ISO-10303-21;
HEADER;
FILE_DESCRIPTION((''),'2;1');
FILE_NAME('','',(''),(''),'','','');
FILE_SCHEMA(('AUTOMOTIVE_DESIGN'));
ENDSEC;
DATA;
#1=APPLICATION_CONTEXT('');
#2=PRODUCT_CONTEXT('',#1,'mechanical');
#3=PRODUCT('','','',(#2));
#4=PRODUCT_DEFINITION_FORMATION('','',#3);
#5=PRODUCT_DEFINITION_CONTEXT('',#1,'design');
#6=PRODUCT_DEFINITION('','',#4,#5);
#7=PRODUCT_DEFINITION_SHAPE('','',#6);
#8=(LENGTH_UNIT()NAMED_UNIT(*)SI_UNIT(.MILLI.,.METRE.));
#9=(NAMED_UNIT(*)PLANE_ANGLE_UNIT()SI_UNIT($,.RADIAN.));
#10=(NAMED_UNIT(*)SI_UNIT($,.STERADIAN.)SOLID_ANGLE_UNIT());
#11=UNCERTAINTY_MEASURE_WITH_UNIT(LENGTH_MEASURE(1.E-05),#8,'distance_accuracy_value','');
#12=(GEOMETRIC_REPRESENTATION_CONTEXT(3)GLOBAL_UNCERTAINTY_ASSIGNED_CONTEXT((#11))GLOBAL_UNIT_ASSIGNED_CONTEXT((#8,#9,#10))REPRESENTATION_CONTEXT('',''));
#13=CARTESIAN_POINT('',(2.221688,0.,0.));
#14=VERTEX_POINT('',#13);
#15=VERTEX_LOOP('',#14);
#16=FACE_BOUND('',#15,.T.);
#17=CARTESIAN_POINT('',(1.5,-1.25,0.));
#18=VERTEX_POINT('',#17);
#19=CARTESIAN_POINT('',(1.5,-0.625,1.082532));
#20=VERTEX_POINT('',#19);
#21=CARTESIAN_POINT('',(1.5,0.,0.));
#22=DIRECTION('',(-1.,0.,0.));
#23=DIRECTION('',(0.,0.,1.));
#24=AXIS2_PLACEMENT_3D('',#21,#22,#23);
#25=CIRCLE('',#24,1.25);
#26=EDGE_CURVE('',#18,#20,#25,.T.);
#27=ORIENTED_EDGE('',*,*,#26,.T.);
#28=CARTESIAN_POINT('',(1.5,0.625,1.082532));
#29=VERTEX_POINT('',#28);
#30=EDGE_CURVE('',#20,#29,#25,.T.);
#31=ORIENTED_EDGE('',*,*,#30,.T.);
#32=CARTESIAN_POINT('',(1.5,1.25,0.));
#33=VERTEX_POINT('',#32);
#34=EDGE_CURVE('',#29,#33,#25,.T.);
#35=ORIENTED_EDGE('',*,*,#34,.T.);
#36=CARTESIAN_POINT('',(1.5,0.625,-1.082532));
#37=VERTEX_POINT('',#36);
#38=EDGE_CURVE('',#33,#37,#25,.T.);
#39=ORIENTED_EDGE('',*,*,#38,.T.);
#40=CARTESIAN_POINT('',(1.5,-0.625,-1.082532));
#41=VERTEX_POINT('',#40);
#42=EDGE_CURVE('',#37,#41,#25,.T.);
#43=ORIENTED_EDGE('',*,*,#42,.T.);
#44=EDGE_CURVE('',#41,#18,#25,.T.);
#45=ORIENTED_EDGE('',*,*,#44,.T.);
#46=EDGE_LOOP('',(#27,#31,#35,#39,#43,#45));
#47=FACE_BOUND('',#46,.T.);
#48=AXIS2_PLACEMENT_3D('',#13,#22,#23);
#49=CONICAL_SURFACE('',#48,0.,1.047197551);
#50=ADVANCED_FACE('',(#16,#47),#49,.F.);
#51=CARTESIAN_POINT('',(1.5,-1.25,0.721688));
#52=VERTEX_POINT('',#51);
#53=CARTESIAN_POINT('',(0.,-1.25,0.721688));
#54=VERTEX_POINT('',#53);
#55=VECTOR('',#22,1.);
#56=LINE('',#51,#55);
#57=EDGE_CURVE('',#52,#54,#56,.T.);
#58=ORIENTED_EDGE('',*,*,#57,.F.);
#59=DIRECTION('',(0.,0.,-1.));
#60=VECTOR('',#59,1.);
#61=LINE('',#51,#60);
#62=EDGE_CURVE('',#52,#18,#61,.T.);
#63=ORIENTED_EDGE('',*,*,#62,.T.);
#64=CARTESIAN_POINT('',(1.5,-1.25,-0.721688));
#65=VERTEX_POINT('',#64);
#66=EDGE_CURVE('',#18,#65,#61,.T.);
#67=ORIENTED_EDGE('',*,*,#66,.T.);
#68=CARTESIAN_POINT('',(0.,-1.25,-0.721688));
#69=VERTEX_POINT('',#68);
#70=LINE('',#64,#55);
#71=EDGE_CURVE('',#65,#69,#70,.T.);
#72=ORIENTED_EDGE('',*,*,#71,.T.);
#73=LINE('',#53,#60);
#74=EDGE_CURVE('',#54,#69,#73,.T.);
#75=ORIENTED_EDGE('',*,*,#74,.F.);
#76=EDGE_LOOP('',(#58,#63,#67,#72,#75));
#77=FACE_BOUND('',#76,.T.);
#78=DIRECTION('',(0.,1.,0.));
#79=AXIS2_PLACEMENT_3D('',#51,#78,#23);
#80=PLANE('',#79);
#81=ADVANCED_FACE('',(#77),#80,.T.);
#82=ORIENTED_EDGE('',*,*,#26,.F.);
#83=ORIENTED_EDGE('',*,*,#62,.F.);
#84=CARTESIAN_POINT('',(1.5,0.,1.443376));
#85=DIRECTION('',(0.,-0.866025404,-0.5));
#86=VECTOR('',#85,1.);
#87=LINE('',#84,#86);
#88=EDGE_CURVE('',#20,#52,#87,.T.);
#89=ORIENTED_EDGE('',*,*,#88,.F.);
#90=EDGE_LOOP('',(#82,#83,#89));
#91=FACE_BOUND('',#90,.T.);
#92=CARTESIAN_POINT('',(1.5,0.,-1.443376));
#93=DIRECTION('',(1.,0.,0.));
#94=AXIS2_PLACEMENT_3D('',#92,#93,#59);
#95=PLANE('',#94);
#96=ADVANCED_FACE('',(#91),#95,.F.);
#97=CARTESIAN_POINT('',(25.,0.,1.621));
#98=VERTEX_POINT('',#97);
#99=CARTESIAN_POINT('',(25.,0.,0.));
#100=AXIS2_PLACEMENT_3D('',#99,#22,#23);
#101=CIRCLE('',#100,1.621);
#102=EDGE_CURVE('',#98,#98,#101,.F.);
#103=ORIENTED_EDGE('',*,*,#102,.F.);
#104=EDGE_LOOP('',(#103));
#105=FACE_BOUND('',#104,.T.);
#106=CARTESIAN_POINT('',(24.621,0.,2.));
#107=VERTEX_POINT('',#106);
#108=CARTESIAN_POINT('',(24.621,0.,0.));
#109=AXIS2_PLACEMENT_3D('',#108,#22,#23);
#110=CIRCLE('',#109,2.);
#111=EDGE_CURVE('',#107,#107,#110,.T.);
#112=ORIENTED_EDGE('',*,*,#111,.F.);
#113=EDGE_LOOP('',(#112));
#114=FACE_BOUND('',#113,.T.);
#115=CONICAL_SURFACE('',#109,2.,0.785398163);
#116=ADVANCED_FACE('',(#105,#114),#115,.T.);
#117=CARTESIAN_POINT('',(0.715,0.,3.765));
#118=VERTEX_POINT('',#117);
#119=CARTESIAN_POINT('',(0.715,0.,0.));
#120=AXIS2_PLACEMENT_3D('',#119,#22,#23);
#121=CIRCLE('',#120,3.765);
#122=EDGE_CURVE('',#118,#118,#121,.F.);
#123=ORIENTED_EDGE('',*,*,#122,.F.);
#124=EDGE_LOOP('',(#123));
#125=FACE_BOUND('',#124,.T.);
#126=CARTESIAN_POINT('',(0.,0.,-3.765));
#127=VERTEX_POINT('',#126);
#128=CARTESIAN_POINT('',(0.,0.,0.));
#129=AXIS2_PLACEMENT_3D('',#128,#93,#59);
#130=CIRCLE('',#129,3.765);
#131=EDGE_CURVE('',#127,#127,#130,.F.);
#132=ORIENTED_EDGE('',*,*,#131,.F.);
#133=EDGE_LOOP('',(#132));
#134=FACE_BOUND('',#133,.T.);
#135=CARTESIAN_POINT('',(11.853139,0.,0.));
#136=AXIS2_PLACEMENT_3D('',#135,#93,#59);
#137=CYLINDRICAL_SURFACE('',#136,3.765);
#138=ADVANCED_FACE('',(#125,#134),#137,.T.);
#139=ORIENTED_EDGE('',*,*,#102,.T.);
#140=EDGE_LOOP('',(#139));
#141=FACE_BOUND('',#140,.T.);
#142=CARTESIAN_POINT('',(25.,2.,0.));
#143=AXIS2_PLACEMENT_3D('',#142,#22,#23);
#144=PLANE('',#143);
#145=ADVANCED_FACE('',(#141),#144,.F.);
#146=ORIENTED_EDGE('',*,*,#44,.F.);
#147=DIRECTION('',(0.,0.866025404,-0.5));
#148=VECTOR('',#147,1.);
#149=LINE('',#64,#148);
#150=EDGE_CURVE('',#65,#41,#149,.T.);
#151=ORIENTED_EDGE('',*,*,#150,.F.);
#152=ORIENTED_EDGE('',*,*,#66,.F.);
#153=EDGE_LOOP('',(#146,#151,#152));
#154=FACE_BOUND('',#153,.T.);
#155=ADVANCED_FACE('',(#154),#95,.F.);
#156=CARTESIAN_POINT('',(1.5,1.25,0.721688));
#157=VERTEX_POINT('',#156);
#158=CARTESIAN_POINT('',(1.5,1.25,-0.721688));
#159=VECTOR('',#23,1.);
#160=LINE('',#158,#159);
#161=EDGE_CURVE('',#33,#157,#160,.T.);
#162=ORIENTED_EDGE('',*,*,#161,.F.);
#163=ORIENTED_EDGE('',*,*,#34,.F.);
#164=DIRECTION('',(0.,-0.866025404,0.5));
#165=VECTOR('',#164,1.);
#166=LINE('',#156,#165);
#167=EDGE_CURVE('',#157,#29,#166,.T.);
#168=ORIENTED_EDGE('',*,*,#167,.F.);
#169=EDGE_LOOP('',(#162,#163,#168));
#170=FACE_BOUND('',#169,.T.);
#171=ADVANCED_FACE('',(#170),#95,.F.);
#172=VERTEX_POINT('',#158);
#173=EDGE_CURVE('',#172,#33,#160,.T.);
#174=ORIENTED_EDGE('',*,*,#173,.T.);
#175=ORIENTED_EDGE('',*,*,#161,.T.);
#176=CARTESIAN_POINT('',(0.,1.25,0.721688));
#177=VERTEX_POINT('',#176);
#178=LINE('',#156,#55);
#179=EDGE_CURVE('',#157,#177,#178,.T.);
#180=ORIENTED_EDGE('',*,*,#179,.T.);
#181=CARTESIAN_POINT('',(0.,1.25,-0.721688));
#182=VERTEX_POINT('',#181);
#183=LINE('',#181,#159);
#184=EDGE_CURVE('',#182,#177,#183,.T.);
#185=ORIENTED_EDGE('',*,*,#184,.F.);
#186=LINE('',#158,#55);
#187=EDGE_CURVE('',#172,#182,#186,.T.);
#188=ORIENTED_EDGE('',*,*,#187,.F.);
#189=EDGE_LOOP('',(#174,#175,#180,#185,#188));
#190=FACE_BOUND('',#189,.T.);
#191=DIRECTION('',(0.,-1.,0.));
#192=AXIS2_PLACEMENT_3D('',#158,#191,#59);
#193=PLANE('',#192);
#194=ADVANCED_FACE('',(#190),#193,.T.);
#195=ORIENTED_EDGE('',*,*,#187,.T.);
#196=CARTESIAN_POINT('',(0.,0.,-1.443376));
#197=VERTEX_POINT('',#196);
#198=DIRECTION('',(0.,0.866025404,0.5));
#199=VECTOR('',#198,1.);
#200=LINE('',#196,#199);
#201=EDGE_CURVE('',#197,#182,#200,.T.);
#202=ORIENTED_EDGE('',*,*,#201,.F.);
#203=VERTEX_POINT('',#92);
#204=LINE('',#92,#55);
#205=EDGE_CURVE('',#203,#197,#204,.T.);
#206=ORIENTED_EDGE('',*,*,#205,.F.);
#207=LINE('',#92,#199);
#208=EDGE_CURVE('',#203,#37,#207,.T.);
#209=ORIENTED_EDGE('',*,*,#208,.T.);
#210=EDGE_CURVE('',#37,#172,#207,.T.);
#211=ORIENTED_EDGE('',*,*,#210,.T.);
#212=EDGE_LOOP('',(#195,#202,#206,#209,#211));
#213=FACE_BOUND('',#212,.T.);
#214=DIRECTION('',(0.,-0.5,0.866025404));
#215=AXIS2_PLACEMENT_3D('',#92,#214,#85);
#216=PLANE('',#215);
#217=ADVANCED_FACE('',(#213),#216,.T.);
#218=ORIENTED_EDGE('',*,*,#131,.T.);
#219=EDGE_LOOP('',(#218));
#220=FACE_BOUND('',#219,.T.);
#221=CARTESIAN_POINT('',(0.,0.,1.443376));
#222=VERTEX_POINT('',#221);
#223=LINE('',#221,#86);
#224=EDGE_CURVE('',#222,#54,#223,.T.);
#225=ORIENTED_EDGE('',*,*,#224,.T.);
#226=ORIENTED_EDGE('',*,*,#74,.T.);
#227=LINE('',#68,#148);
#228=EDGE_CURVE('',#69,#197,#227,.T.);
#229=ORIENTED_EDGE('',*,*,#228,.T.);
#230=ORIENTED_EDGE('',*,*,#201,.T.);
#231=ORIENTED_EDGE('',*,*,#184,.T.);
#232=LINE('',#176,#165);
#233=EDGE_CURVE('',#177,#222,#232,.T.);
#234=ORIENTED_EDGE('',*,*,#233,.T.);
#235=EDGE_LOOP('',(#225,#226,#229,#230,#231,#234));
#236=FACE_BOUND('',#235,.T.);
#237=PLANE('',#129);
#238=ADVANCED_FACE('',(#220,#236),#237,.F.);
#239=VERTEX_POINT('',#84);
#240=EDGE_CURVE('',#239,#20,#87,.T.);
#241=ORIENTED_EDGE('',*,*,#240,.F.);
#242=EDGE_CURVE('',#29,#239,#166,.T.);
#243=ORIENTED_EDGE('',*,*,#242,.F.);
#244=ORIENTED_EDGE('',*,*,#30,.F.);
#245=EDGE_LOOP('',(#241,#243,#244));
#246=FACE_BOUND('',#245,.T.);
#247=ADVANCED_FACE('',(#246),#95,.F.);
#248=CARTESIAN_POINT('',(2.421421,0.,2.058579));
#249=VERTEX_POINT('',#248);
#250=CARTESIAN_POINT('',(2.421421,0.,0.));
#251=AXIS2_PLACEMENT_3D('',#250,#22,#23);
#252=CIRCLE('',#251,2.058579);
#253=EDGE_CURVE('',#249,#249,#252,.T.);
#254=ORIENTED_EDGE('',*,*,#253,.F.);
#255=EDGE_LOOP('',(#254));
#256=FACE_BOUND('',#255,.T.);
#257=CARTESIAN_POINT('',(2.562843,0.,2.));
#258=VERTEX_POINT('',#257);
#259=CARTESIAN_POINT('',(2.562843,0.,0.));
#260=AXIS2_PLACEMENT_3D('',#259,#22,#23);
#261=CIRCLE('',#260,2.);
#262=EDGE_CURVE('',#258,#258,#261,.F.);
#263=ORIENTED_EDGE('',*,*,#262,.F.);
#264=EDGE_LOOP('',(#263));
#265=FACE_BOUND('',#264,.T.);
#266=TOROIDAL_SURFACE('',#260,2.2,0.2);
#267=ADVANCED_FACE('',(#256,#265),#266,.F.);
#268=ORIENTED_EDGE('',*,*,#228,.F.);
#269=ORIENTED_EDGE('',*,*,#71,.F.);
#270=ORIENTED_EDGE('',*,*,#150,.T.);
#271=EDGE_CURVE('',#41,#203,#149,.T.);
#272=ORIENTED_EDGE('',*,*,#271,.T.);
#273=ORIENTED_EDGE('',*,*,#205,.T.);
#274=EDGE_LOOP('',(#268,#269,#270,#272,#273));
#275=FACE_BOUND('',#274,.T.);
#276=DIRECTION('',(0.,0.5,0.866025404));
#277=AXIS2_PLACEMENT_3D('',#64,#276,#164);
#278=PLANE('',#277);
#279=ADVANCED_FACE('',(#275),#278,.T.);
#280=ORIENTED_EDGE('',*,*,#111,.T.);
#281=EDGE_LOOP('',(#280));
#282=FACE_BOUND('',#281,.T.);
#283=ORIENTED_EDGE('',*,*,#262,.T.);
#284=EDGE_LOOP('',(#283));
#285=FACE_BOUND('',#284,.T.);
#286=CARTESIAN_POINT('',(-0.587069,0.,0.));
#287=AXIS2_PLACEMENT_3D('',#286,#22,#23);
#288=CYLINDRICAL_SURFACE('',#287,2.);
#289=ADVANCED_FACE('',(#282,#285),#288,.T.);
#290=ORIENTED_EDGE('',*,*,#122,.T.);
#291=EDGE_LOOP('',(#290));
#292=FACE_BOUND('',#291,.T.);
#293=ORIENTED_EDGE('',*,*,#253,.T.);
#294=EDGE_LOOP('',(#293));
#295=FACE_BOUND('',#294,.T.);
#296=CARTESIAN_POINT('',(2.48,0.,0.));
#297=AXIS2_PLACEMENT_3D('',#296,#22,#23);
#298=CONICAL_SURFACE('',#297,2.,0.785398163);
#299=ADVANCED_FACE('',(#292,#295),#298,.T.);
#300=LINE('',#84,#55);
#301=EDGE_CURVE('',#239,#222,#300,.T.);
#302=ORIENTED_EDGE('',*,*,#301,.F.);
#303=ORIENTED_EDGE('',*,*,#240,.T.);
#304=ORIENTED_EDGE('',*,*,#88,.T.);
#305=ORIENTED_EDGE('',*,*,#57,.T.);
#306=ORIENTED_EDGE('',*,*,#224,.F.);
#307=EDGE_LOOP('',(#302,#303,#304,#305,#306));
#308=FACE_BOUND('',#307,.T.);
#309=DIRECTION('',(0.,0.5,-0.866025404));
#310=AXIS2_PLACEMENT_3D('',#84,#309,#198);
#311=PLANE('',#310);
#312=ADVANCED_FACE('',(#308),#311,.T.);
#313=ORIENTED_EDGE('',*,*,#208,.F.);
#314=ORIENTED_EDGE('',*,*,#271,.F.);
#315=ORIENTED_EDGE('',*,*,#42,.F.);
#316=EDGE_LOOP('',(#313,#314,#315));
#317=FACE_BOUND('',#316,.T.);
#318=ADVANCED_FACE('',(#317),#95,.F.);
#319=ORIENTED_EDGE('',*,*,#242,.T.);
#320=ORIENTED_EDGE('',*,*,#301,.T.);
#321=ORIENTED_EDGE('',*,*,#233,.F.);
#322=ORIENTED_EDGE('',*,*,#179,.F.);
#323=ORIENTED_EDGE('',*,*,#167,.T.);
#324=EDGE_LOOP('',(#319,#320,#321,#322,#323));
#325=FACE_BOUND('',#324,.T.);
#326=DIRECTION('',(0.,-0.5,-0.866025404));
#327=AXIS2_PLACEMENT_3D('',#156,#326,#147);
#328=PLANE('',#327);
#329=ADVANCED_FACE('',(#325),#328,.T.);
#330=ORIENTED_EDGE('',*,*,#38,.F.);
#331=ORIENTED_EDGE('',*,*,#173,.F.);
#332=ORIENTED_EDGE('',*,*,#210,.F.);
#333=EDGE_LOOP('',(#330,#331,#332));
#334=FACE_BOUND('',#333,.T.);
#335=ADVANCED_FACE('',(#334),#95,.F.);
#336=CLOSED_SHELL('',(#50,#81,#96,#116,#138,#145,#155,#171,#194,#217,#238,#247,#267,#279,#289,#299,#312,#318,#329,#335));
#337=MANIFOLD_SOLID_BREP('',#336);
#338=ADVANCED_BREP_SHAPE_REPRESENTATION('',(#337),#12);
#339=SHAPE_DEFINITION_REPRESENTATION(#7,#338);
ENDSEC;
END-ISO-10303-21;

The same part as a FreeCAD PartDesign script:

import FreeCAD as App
import Part
import Sketcher
from FreeCAD import Vector
Q = App.Units.Quantity


def edges_at(feature, points):
    """Names of the edges that pass closest to the given points."""
    edges = feature.Shape.Edges
    near = lambda p: min(range(len(edges)), key=lambda i: edges[i].distToShape(Part.Vertex(*p))[0])
    return sorted({f"Edge{near(p) + 1}" for p in points})

doc = App.newDocument("Part")
body = doc.addObject("PartDesign::Body", "Body")

# Sketch on XY plane
sketch1 = body.newObject("Sketcher::SketchObject", "Sketch")
sketch1.AttachmentSupport = (doc.getObject("XY_Plane"), [""])
sketch1.MapMode = "FlatFace"
sketch1.addGeometry([
    Part.LineSegment(Vector(0, 4.5, 0), Vector(0, 0, 0)),  # 0
    Part.LineSegment(Vector(0, 0, 0), Vector(25, 0, 0)),  # 1
    Part.LineSegment(Vector(25, 0, 0), Vector(25, 2, 0)),  # 2
    Part.LineSegment(Vector(25, 2, 0), Vector(2.5, 2, 0)),  # 3
    Part.LineSegment(Vector(2.5, 2, 0), Vector(0, 4.5, 0)),  # 4
], False)
sketch1.addConstraint([
    Sketcher.Constraint("Coincident", 0, 2, 1, 1),
    Sketcher.Constraint("Coincident", 1, 2, 2, 1),
    Sketcher.Constraint("Coincident", 2, 2, 3, 1),
    Sketcher.Constraint("Coincident", 3, 2, 4, 1),
    Sketcher.Constraint("Coincident", 4, 2, 0, 1),
    Sketcher.Constraint("Vertical", 0),
    Sketcher.Constraint("Horizontal", 1),
    Sketcher.Constraint("Vertical", 2),
    Sketcher.Constraint("Horizontal", 3),
    Sketcher.Constraint("Coincident", 0, 2, -1, 1),
    Sketcher.Constraint("DistanceX", 1, 1, 1, 2, 25.0),
    Sketcher.Constraint("DistanceY", 2, 1, 2, 2, 2.0),
    Sketcher.Constraint("Angle", 4, Q("135 deg")),
    Sketcher.Constraint("DistanceX", 3, 2, 3, 1, 22.52),
])
revolution = body.newObject("PartDesign::Revolution", "Revolution")
revolution.Profile = sketch1
revolution.ReferenceAxis = (sketch1, ["H_Axis"])
revolution.Angle = 360

# Sketch on YZ plane
sketch2 = body.newObject("Sketcher::SketchObject", "Sketch001")
sketch2.AttachmentSupport = (doc.getObject("YZ_Plane"), [""])
sketch2.MapMode = "FlatFace"
sketch2.addGeometry([
    Part.LineSegment(Vector(0, -1.4, 0), Vector(1.2, -0.7, 0)),  # 0
    Part.LineSegment(Vector(1.2, -0.7, 0), Vector(1.2, 0.7, 0)),  # 1
    Part.LineSegment(Vector(1.2, 0.7, 0), Vector(0, 1.4, 0)),  # 2
    Part.LineSegment(Vector(0, 1.4, 0), Vector(-1.2, 0.7, 0)),  # 3
    Part.LineSegment(Vector(-1.2, 0.7, 0), Vector(-1.2, -0.7, 0)),  # 4
    Part.LineSegment(Vector(-1.2, -0.7, 0), Vector(0, -1.4, 0)),  # 5
], False)
sketch2.addConstraint([
    Sketcher.Constraint("Coincident", 0, 2, 1, 1),
    Sketcher.Constraint("Coincident", 1, 2, 2, 1),
    Sketcher.Constraint("Coincident", 2, 2, 3, 1),
    Sketcher.Constraint("Coincident", 3, 2, 4, 1),
    Sketcher.Constraint("Coincident", 4, 2, 5, 1),
    Sketcher.Constraint("Coincident", 5, 2, 0, 1),
    Sketcher.Constraint("Vertical", 1),
    Sketcher.Constraint("Vertical", 4),
    Sketcher.Constraint("Symmetric", 0, 2, 3, 2, -1, 1),
    Sketcher.Constraint("Symmetric", 2, 2, 5, 2, -1, 1),
    Sketcher.Constraint("PointOnObject", 2, 2, -2),
    Sketcher.Constraint("Parallel", 2, 5),
    Sketcher.Constraint("Horizontal", 1, 2, 3, 2),
    Sketcher.Constraint("Angle", 0, Q("30 deg")),
    Sketcher.Constraint("DistanceX", 3, 2, 1, 2, 2.5),
    Sketcher.Constraint("DistanceY", 1, 1, 1, 2, 1.443376),
])
pocket1 = body.newObject("PartDesign::Pocket", "Pocket")
pocket1.Profile = sketch2
pocket1.Length = 1.5
pocket1.Reversed = True

# Sketch on XY plane
sketch3 = body.newObject("Sketcher::SketchObject", "Sketch002")
sketch3.AttachmentSupport = (doc.getObject("XY_Plane"), [""])
sketch3.MapMode = "FlatFace"
sketch3.addGeometry([
    Part.LineSegment(Vector(2.2, 0, 0), Vector(1.5, 1.2, 0)),
    Part.LineSegment(Vector(1.5, 1.2, 0), Vector(1.5, 0, 0)),
    Part.LineSegment(Vector(1.5, 0, 0), Vector(2.2, 0, 0)),
], False)
sketch3.addConstraint([
    Sketcher.Constraint("Coincident", 0, 2, 1, 1),
    Sketcher.Constraint("Coincident", 1, 2, 2, 1),
    Sketcher.Constraint("Coincident", 2, 2, 0, 1),
    Sketcher.Constraint("Vertical", 1),
    Sketcher.Constraint("Horizontal", 2),
    Sketcher.Constraint("PointOnObject", 1, 2, -1),
    Sketcher.Constraint("Angle", 0, Q("120 deg")),
    Sketcher.Constraint("DistanceY", 1, 2, 1, 1, 1.25),
    Sketcher.Constraint("DistanceX", -1, 1, 0, 2, 1.5),
])
groove = body.newObject("PartDesign::Groove", "Groove")
groove.Profile = sketch3
groove.ReferenceAxis = (sketch3, ["H_Axis"])
groove.Angle = 360
doc.recompute()

fillet = body.newObject("PartDesign::Fillet", "Fillet")
fillet.Base = (groove, edges_at(groove, [(2.48, 0, -2)]))
fillet.Radius = 0.2
doc.recompute()

chamfer = body.newObject("PartDesign::Chamfer", "Chamfer")
chamfer.Base = (fillet, edges_at(fillet, [(25, 0, -2)]))
chamfer.Size = 0.379

# Sketch on XZ plane
sketch4 = body.newObject("Sketcher::SketchObject", "Sketch003")
sketch4.AttachmentSupport = (doc.getObject("XZ_Plane"), [""])
sketch4.MapMode = "FlatFace"
sketch4.addGeometry([
    Part.LineSegment(Vector(-2, -9, 0), Vector(-2, -4, 0)),
    Part.LineSegment(Vector(-2, -4, 0), Vector(3, -4, 0)),
    Part.LineSegment(Vector(3, -4, 0), Vector(3, -9, 0)),
    Part.LineSegment(Vector(3, -9, 0), Vector(-2, -9, 0)),
], False)
sketch4.addConstraint([
    Sketcher.Constraint("Coincident", 0, 2, 1, 1),
    Sketcher.Constraint("Coincident", 1, 2, 2, 1),
    Sketcher.Constraint("Coincident", 2, 2, 3, 1),
    Sketcher.Constraint("Coincident", 3, 2, 0, 1),
    Sketcher.Constraint("Vertical", 0),
    Sketcher.Constraint("Horizontal", 1),
    Sketcher.Constraint("Vertical", 2),
    Sketcher.Constraint("Horizontal", 3),
    Sketcher.Constraint("Equal", 3, 0),
    Sketcher.Constraint("DistanceX", 1, 1, 1, 2, 5.0),
    Sketcher.Constraint("DistanceX", 0, 2, -1, 1, 2.0),
    Sketcher.Constraint("DistanceY", 0, 2, -1, 1, 3.765),
])
groove2 = body.newObject("PartDesign::Groove", "Groove001")
groove2.Profile = sketch4
groove2.ReferenceAxis = (sketch4, ["H_Axis"])
groove2.Angle = 360

doc.recompute()
